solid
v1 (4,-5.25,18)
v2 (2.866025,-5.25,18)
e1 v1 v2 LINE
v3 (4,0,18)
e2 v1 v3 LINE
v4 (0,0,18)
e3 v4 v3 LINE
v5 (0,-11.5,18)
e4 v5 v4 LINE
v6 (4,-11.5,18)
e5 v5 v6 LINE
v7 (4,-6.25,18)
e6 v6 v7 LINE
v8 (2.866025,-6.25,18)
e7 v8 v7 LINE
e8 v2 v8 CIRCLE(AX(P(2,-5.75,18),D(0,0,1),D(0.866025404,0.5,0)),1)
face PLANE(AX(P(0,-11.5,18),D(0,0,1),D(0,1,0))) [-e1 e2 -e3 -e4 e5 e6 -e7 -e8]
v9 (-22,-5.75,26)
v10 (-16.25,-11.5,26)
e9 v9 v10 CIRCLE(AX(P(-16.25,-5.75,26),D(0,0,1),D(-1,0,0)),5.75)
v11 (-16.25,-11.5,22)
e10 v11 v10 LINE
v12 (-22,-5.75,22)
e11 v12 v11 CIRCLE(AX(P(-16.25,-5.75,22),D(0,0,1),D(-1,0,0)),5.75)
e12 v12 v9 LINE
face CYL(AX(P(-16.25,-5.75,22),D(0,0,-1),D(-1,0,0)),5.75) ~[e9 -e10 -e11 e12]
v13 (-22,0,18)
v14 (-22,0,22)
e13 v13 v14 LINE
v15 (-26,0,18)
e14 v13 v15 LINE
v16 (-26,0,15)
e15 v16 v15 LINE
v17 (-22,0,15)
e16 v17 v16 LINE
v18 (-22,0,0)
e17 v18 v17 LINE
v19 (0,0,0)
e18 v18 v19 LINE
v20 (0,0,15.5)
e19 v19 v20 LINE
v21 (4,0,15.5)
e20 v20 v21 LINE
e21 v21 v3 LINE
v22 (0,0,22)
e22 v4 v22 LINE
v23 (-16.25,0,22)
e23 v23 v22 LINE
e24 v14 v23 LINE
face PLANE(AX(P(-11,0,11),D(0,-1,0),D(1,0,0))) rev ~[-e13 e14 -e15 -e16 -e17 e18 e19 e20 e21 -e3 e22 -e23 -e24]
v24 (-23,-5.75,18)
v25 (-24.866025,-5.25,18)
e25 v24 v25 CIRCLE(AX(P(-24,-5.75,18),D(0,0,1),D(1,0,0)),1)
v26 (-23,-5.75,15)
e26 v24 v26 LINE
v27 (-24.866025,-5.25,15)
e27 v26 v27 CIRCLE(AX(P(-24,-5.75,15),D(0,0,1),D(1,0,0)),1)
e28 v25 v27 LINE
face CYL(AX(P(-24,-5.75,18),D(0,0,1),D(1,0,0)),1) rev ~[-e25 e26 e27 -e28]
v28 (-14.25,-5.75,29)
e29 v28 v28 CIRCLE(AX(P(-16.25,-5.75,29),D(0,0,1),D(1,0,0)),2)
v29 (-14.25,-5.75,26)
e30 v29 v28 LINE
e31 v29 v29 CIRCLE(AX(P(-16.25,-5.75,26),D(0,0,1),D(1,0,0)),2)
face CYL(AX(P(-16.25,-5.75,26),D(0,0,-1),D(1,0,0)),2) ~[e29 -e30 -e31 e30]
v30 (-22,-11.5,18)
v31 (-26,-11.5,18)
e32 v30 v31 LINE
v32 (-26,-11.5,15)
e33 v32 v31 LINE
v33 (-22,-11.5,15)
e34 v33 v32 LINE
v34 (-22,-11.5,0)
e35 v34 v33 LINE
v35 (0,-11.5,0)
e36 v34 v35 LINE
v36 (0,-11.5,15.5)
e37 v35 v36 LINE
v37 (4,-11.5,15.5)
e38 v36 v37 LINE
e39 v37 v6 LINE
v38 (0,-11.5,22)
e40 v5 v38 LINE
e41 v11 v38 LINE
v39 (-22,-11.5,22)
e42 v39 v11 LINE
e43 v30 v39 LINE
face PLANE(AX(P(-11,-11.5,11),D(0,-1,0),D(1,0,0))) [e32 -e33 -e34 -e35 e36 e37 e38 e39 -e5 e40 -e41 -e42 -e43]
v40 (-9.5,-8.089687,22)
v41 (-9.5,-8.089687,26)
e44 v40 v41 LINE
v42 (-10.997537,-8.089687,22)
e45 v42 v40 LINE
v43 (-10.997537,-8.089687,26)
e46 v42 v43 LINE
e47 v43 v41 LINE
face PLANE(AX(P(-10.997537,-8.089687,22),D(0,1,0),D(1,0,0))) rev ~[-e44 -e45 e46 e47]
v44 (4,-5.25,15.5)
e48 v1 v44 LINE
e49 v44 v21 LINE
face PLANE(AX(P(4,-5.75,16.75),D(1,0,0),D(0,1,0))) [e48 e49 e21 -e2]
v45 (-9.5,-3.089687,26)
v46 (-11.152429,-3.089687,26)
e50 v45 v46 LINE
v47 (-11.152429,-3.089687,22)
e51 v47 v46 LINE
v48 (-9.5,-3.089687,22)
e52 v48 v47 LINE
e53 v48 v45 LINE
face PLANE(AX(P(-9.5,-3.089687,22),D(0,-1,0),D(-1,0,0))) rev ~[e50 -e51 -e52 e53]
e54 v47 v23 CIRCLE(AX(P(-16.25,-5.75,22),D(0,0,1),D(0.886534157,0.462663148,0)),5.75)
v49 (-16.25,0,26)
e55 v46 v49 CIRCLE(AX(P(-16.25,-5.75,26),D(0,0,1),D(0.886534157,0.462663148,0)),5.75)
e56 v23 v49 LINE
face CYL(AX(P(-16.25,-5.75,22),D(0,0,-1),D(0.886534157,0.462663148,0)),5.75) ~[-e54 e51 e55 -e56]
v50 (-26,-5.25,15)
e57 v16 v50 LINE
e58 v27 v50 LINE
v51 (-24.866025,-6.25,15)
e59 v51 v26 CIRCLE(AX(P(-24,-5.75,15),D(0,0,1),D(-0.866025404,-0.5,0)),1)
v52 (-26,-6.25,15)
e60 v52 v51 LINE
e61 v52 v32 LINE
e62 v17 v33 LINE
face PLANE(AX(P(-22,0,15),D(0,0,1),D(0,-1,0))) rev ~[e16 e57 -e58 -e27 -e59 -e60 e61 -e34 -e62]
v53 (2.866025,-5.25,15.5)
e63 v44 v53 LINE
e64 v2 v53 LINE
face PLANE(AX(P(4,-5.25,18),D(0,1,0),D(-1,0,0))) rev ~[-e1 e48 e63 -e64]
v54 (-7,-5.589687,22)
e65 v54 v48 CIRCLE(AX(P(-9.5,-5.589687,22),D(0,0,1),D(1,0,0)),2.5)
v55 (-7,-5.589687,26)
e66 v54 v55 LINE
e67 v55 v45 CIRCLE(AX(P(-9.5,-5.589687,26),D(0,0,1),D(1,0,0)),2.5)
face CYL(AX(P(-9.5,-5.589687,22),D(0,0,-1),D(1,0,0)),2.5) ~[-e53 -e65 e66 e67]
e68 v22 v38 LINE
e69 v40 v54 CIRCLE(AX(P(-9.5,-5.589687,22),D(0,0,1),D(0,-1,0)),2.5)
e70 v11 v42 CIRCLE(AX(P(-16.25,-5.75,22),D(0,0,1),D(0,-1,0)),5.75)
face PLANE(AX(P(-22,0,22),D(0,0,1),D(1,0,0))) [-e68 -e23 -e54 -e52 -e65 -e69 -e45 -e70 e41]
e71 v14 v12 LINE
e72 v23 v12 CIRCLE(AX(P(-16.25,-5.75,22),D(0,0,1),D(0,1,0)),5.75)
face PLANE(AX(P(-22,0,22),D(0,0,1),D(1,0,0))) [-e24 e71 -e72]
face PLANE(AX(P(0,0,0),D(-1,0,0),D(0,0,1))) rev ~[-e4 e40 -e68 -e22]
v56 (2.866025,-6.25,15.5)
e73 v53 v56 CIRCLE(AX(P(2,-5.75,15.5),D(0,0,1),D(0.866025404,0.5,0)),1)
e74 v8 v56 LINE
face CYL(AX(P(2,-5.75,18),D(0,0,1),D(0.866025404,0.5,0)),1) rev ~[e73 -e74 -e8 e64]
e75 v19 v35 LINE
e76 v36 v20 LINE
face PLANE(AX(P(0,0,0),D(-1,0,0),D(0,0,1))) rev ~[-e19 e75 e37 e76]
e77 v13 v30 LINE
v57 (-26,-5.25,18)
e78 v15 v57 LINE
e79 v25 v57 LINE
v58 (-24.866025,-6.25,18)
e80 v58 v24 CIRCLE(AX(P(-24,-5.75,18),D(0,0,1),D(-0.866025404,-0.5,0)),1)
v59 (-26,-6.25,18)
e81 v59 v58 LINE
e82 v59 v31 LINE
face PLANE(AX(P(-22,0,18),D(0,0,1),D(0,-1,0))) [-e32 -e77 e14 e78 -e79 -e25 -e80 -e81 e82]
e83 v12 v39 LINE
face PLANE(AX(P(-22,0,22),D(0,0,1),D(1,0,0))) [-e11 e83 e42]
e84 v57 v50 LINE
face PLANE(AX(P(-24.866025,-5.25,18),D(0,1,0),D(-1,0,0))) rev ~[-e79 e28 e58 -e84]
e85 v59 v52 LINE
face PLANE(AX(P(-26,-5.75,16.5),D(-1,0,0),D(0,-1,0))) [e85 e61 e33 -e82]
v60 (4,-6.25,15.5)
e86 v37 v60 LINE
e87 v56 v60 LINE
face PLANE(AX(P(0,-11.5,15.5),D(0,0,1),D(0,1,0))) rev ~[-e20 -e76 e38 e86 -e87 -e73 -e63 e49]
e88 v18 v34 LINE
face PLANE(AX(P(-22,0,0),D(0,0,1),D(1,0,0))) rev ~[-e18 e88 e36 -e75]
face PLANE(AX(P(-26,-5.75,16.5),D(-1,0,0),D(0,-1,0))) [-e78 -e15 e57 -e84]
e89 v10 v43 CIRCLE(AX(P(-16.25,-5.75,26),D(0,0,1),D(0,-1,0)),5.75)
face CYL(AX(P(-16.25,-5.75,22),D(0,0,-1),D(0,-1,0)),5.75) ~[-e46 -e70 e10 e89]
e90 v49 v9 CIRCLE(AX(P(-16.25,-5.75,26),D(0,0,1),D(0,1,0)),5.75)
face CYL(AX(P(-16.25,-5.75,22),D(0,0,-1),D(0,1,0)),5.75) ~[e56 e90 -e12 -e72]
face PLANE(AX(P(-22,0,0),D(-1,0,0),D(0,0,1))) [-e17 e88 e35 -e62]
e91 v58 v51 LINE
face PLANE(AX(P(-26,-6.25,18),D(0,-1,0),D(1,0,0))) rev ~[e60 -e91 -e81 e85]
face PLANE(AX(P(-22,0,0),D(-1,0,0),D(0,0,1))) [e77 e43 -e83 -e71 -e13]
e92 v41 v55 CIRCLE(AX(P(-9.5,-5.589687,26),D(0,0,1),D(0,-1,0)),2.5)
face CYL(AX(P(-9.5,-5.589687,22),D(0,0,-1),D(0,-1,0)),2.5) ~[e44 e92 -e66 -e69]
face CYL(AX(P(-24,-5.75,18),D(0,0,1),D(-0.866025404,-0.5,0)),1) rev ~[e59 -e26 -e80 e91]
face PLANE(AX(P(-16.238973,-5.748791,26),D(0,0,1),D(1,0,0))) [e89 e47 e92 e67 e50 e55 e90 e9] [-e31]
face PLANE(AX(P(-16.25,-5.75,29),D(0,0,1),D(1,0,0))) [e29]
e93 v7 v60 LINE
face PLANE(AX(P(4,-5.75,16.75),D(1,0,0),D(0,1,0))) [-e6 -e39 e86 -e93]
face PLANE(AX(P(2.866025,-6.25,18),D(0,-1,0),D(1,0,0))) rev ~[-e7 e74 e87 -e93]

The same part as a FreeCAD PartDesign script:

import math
import FreeCAD as App
import Part
import Sketcher
from FreeCAD import Vector


def add_polygon(sketch, points):
    """Adds a closed chain of lines whose ends are joined by coincident constraints."""
    first, n = sketch.GeometryCount, len(points)
    for a, b in zip(points, points[1:] + points[:1]):
        sketch.addGeometry(Part.LineSegment(App.Vector(*a, 0), App.Vector(*b, 0)), False)
    for i in range(n):
        sketch.addConstraint(Sketcher.Constraint("Coincident", first + i, 2, first + (i + 1) % n, 1))

doc = App.newDocument("Part")
body = doc.addObject("PartDesign::Body", "Body")

# Sketch on XZ plane
sketch1 = doc.addObject("Sketcher::SketchObject", "Sketch")
body.addObject(sketch1)
sketch1.AttachmentSupport = (doc.XZ_Plane, [""])
sketch1.MapMode = "FlatFace"
add_polygon(sketch1, [(-22, 22), (-22, 0), (0, 0), (0, 22)])  # lines 0-3
sketch1.addConstraint(Sketcher.Constraint("Vertical", 0))
sketch1.addConstraint(Sketcher.Constraint("Horizontal", 1))
sketch1.addConstraint(Sketcher.Constraint("Vertical", 2))
sketch1.addConstraint(Sketcher.Constraint("Horizontal", 3))
sketch1.addConstraint(Sketcher.Constraint("Coincident", 1, 2, -1, 1))
sketch1.addConstraint(Sketcher.Constraint("Equal", 3, 0))
sketch1.addConstraint(Sketcher.Constraint("DistanceX", 1, 1, 1, 2, 22.0))
pad1 = doc.addObject("PartDesign::Pad", "Pad")
body.addObject(pad1)
pad1.Profile = sketch1
pad1.Length = 11.5

# Sketch on XY plane
sketch2 = doc.addObject("Sketcher::SketchObject", "Sketch001")
body.addObject(sketch2)
sketch2.AttachmentSupport = (doc.XY_Plane, [""])
sketch2.MapMode = "FlatFace"
sketch2.AttachmentOffset = App.Placement(Vector(0, 0, 22), App.Rotation())
sketch2.addGeometry(Part.ArcOfCircle(Part.Circle(Vector(-16.25, -5.75, 0), Vector(0, 0, 1), 5.75), math.radians(27.55909), math.radians(90)), False)
sketch2.addGeometry(Part.ArcOfCircle(Part.Circle(Vector(-16.25, -5.75, 0), Vector(0, 0, 1), 5.75), math.radians(90), math.radians(180)), False)
sketch2.addGeometry(Part.ArcOfCircle(Part.Circle(Vector(-16.25, -5.75, 0), Vector(0, 0, 1), 5.75), math.radians(180), math.radians(270)), False)
sketch2.addGeometry(Part.ArcOfCircle(Part.Circle(Vector(-16.25, -5.75, 0), Vector(0, 0, 1), 5.75), math.radians(-90), math.radians(-24.010376)), False)
sketch2.addGeometry(Part.LineSegment(Vector(-10.997537, -8.089687, 0), Vector(-9.5, -8.089687, 0)), False)
sketch2.addGeometry(Part.ArcOfCircle(Part.Circle(Vector(-9.5, -5.589687, 0), Vector(0, 0, 1), 2.5), math.radians(-90), math.radians(0)), False)
sketch2.addGeometry(Part.ArcOfCircle(Part.Circle(Vector(-9.5, -5.589687, 0), Vector(0, 0, 1), 2.5), math.radians(0), math.radians(90)), False)
sketch2.addGeometry(Part.LineSegment(Vector(-9.5, -3.089687, 0), Vector(-11.152429, -3.089687, 0)), False)
sketch2.addConstraint(Sketcher.Constraint("Tangent", 0, 2, 1, 1))
sketch2.addConstraint(Sketcher.Constraint("Tangent", 1, 2, 2, 1))
sketch2.addConstraint(Sketcher.Constraint("Tangent", 2, 2, 3, 1))
sketch2.addConstraint(Sketcher.Constraint("Coincident", 3, 2, 4, 1))
sketch2.addConstraint(Sketcher.Constraint("Tangent", 4, 2, 5, 1))
sketch2.addConstraint(Sketcher.Constraint("Tangent", 5, 2, 6, 1))
sketch2.addConstraint(Sketcher.Constraint("Tangent", 6, 2, 7, 1))
sketch2.addConstraint(Sketcher.Constraint("Coincident", 7, 2, 0, 1))
sketch2.addConstraint(Sketcher.Constraint("Horizontal", 4))
sketch2.addConstraint(Sketcher.Constraint("Horizontal", 7))
sketch2.addConstraint(Sketcher.Constraint("Coincident", 2, 3, 0, 3))
sketch2.addConstraint(Sketcher.Constraint("Equal", 2, 3))
sketch2.addConstraint(Sketcher.Constraint("Equal", 5, 6))
sketch2.addConstraint(Sketcher.Constraint("PointOnObject", 0, 2, -1))
sketch2.addConstraint(Sketcher.Constraint("Horizontal", 3, 3, 1, 2))
sketch2.addConstraint(Sketcher.Constraint("Horizontal", 6, 3, 5, 2))
sketch2.addConstraint(Sketcher.Constraint("Vertical", 3, 3, 0, 2))
sketch2.addConstraint(Sketcher.Constraint("Vertical", 0, 2, 2, 2))
sketch2.addConstraint(Sketcher.Constraint("Radius", 5, 2.5))
sketch2.addConstraint(Sketcher.Constraint("Radius", 0, 5.75))
sketch2.addConstraint(Sketcher.Constraint("DistanceX", 1, 2, -1, 1, 22.0))
sketch2.addConstraint(Sketcher.Constraint("DistanceX", 5, 2, -1, 1, 7.0))
sketch2.addConstraint(Sketcher.Constraint("DistanceX", 7, 2, 7, 1, 1.652429))
pad2 = doc.addObject("PartDesign::Pad", "Pad001")
body.addObject(pad2)
pad2.Profile = sketch2
pad2.Length = 4

# Sketch on XY plane
sketch3 = doc.addObject("Sketcher::SketchObject", "Sketch002")
body.addObject(sketch3)
sketch3.AttachmentSupport = (doc.XY_Plane, [""])
sketch3.MapMode = "FlatFace"
sketch3.AttachmentOffset = App.Placement(Vector(0, 0, 26), App.Rotation())
sketch3.addGeometry(Part.Circle(Vector(-16.25, -5.75, 0), Vector(0, 0, 1), 2), False)
sketch3.addConstraint(Sketcher.Constraint("Diameter", 0, 4.0))
sketch3.addConstraint(Sketcher.Constraint("DistanceX", 0, 3, -1, 1, 16.25))
sketch3.addConstraint(Sketcher.Constraint("DistanceY", 0, 3, -1, 1, 5.75))
pad3 = doc.addObject("PartDesign::Pad", "Pad002")
body.addObject(pad3)
pad3.Profile = sketch3
pad3.Length = 3

# Sketch on YZ plane
sketch4 = doc.addObject("Sketcher::SketchObject", "Sketch003")
body.addObject(sketch4)
sketch4.AttachmentSupport = (doc.YZ_Plane, [""])
sketch4.MapMode = "FlatFace"
add_polygon(sketch4, [(-11.5, 18), (-11.5, 15.5), (0, 15.5), (0, 18)])  # lines 0-3
sketch4.addConstraint(Sketcher.Constraint("Vertical", 0))
sketch4.addConstraint(Sketcher.Constraint("Horizontal", 1))
sketch4.addConstraint(Sketcher.Constraint("Vertical", 2))
sketch4.addConstraint(Sketcher.Constraint("Horizontal", 3))
sketch4.addConstraint(Sketcher.Constraint("PointOnObject", 1, 2, -2))
sketch4.addConstraint(Sketcher.Constraint("DistanceX", 1, 1, 1, 2, 11.5))
sketch4.addConstraint(Sketcher.Constraint("DistanceY", 0, 2, 0, 1, 2.5))
sketch4.addConstraint(Sketcher.Constraint("DistanceY", -1, 1, 2, 2, 18.0))
pad4 = doc.addObject("PartDesign::Pad", "Pad003")
body.addObject(pad4)
pad4.Profile = sketch4
pad4.Length = 4

# Sketch on YZ plane
sketch5 = doc.addObject("Sketcher::SketchObject", "Sketch004")
body.addObject(sketch5)
sketch5.AttachmentSupport = (doc.YZ_Plane, [""])
sketch5.MapMode = "FlatFace"
sketch5.AttachmentOffset = App.Placement(Vector(0, 0, -22), App.Rotation())
add_polygon(sketch5, [(0, 18), (0, 15), (-11.5, 15), (-11.5, 18)])  # lines 0-3
sketch5.addConstraint(Sketcher.Constraint("Vertical", 0))
sketch5.addConstraint(Sketcher.Constraint("Horizontal", 1))
sketch5.addConstraint(Sketcher.Constraint("Vertical", 2))
sketch5.addConstraint(Sketcher.Constraint("Horizontal", 3))
sketch5.addConstraint(Sketcher.Constraint("PointOnObject", 0, 2, -2))
sketch5.addConstraint(Sketcher.Constraint("DistanceY", 0, 2, 0, 1, 3.0))
sketch5.addConstraint(Sketcher.Constraint("DistanceX", 1, 2, 1, 1, 11.5))
sketch5.addConstraint(Sketcher.Constraint("DistanceY", -1, 1, 0, 2, 15.0))
pad5 = doc.addObject("PartDesign::Pad", "Pad004")
body.addObject(pad5)
pad5.Profile = sketch5
pad5.Length = 4
pad5.Reversed = True

# Sketch on XY plane
sketch6 = doc.addObject("Sketcher::SketchObject", "Sketch005")
body.addObject(sketch6)
sketch6.AttachmentSupport = (doc.XY_Plane, [""])
sketch6.MapMode = "FlatFace"
sketch6.AttachmentOffset = App.Placement(Vector(0, 0, 18), App.Rotation())
sketch6.addGeometry(Part.ArcOfCircle(Part.Circle(Vector(-24, -5.75, 0), Vector(0, 0, 1), 1), math.radians(-150), math.radians(0)), False)
sketch6.addGeometry(Part.ArcOfCircle(Part.Circle(Vector(-24, -5.75, 0), Vector(0, 0, 1), 1), math.radians(0), math.radians(150)), False)
sketch6.addGeometry(Part.LineSegment(Vector(-24.866025, -5.25, 0), Vector(-26, -5.25, 0)), False)
sketch6.addGeometry(Part.LineSegment(Vector(-26, -5.25, 0), Vector(-26, -6.25, 0)), False)
sketch6.addGeometry(Part.LineSegment(Vector(-26, -6.25, 0), Vector(-24.866025, -6.25, 0)), False)
sketch6.addConstraint(Sketcher.Constraint("Tangent", 0, 2, 1, 1))
sketch6.addConstraint(Sketcher.Constraint("Coincident", 1, 2, 2, 1))
sketch6.addConstraint(Sketcher.Constraint("Coincident", 2, 2, 3, 1))
sketch6.addConstraint(Sketcher.Constraint("Coincident", 3, 2, 4, 1))
sketch6.addConstraint(Sketcher.Constraint("Coincident", 4, 2, 0, 1))
sketch6.addConstraint(Sketcher.Constraint("Horizontal", 2))
sketch6.addConstraint(Sketcher.Constraint("Vertical", 3))
sketch6.addConstraint(Sketcher.Constraint("Horizontal", 4))
sketch6.addConstraint(Sketcher.Constraint("Equal", 0, 1))
sketch6.addConstraint(Sketcher.Constraint("Horizontal", 1, 3, 0, 2))
sketch6.addConstraint(Sketcher.Constraint("Vertical", 1, 2, 4, 2))
sketch6.addConstraint(Sketcher.Constraint("Radius", 0, 1.0))
sketch6.addConstraint(Sketcher.Constraint("DistanceY", 3, 2, 3, 1, 1.0))
sketch6.addConstraint(Sketcher.Constraint("DistanceX", 0, 3, -1, 1, 24.0))
sketch6.addConstraint(Sketcher.Constraint("DistanceX", 2, 2, -1, 1, 26.0))
sketch6.addConstraint(Sketcher.Constraint("DistanceY", 0, 3, -1, 1, 5.75))
pocket1 = doc.addObject("PartDesign::Pocket", "Pocket")
body.addObject(pocket1)
pocket1.Profile = sketch6
pocket1.Length = 25.4

# Sketch on XY plane
sketch7 = doc.addObject("Sketcher::SketchObject", "Sketch006")
body.addObject(sketch7)
sketch7.AttachmentSupport = (doc.XY_Plane, [""])
sketch7.MapMode = "FlatFace"
sketch7.AttachmentOffset = App.Placement(Vector(0, 0, 18), App.Rotation())
sketch7.addGeometry(Part.ArcOfCircle(Part.Circle(Vector(2, -5.75, 0), Vector(0, 0, 1), 1), math.radians(30), math.radians(330)), False)
sketch7.addGeometry(Part.LineSegment(Vector(2.866025, -6.25, 0), Vector(4, -6.25, 0)), False)
sketch7.addGeometry(Part.LineSegment(Vector(4, -6.25, 0), Vector(4, -5.25, 0)), False)
sketch7.addGeometry(Part.LineSegment(Vector(4, -5.25, 0), Vector(2.866025, -5.25, 0)), False)
sketch7.addConstraint(Sketcher.Constraint("Coincident", 0, 2, 1, 1))
sketch7.addConstraint(Sketcher.Constraint("Coincident", 1, 2, 2, 1))
sketch7.addConstraint(Sketcher.Constraint("Coincident", 2, 2, 3, 1))
sketch7.addConstraint(Sketcher.Constraint("Coincident", 3, 2, 0, 1))
sketch7.addConstraint(Sketcher.Constraint("Horizontal", 1))
sketch7.addConstraint(Sketcher.Constraint("Vertical", 2))
sketch7.addConstraint(Sketcher.Constraint("Horizontal", 3))
sketch7.addConstraint(Sketcher.Constraint("Vertical", 0, 2, 3, 2))
sketch7.addConstraint(Sketcher.Constraint("Radius", 0, 1.0))
sketch7.addConstraint(Sketcher.Constraint("DistanceY", 2, 1, 2, 2, 1.0))
sketch7.addConstraint(Sketcher.Constraint("DistanceX", -1, 1, 0, 3, 2.0))
sketch7.addConstraint(Sketcher.Constraint("DistanceX", -1, 1, 1, 2, 4.0))
sketch7.addConstraint(Sketcher.Constraint("DistanceY", 0, 3, -1, 1, 5.75))
pocket2 = doc.addObject("PartDesign::Pocket", "Pocket001")
body.addObject(pocket2)
pocket2.Profile = sketch7
pocket2.Length = 25.4

doc.recompute()
